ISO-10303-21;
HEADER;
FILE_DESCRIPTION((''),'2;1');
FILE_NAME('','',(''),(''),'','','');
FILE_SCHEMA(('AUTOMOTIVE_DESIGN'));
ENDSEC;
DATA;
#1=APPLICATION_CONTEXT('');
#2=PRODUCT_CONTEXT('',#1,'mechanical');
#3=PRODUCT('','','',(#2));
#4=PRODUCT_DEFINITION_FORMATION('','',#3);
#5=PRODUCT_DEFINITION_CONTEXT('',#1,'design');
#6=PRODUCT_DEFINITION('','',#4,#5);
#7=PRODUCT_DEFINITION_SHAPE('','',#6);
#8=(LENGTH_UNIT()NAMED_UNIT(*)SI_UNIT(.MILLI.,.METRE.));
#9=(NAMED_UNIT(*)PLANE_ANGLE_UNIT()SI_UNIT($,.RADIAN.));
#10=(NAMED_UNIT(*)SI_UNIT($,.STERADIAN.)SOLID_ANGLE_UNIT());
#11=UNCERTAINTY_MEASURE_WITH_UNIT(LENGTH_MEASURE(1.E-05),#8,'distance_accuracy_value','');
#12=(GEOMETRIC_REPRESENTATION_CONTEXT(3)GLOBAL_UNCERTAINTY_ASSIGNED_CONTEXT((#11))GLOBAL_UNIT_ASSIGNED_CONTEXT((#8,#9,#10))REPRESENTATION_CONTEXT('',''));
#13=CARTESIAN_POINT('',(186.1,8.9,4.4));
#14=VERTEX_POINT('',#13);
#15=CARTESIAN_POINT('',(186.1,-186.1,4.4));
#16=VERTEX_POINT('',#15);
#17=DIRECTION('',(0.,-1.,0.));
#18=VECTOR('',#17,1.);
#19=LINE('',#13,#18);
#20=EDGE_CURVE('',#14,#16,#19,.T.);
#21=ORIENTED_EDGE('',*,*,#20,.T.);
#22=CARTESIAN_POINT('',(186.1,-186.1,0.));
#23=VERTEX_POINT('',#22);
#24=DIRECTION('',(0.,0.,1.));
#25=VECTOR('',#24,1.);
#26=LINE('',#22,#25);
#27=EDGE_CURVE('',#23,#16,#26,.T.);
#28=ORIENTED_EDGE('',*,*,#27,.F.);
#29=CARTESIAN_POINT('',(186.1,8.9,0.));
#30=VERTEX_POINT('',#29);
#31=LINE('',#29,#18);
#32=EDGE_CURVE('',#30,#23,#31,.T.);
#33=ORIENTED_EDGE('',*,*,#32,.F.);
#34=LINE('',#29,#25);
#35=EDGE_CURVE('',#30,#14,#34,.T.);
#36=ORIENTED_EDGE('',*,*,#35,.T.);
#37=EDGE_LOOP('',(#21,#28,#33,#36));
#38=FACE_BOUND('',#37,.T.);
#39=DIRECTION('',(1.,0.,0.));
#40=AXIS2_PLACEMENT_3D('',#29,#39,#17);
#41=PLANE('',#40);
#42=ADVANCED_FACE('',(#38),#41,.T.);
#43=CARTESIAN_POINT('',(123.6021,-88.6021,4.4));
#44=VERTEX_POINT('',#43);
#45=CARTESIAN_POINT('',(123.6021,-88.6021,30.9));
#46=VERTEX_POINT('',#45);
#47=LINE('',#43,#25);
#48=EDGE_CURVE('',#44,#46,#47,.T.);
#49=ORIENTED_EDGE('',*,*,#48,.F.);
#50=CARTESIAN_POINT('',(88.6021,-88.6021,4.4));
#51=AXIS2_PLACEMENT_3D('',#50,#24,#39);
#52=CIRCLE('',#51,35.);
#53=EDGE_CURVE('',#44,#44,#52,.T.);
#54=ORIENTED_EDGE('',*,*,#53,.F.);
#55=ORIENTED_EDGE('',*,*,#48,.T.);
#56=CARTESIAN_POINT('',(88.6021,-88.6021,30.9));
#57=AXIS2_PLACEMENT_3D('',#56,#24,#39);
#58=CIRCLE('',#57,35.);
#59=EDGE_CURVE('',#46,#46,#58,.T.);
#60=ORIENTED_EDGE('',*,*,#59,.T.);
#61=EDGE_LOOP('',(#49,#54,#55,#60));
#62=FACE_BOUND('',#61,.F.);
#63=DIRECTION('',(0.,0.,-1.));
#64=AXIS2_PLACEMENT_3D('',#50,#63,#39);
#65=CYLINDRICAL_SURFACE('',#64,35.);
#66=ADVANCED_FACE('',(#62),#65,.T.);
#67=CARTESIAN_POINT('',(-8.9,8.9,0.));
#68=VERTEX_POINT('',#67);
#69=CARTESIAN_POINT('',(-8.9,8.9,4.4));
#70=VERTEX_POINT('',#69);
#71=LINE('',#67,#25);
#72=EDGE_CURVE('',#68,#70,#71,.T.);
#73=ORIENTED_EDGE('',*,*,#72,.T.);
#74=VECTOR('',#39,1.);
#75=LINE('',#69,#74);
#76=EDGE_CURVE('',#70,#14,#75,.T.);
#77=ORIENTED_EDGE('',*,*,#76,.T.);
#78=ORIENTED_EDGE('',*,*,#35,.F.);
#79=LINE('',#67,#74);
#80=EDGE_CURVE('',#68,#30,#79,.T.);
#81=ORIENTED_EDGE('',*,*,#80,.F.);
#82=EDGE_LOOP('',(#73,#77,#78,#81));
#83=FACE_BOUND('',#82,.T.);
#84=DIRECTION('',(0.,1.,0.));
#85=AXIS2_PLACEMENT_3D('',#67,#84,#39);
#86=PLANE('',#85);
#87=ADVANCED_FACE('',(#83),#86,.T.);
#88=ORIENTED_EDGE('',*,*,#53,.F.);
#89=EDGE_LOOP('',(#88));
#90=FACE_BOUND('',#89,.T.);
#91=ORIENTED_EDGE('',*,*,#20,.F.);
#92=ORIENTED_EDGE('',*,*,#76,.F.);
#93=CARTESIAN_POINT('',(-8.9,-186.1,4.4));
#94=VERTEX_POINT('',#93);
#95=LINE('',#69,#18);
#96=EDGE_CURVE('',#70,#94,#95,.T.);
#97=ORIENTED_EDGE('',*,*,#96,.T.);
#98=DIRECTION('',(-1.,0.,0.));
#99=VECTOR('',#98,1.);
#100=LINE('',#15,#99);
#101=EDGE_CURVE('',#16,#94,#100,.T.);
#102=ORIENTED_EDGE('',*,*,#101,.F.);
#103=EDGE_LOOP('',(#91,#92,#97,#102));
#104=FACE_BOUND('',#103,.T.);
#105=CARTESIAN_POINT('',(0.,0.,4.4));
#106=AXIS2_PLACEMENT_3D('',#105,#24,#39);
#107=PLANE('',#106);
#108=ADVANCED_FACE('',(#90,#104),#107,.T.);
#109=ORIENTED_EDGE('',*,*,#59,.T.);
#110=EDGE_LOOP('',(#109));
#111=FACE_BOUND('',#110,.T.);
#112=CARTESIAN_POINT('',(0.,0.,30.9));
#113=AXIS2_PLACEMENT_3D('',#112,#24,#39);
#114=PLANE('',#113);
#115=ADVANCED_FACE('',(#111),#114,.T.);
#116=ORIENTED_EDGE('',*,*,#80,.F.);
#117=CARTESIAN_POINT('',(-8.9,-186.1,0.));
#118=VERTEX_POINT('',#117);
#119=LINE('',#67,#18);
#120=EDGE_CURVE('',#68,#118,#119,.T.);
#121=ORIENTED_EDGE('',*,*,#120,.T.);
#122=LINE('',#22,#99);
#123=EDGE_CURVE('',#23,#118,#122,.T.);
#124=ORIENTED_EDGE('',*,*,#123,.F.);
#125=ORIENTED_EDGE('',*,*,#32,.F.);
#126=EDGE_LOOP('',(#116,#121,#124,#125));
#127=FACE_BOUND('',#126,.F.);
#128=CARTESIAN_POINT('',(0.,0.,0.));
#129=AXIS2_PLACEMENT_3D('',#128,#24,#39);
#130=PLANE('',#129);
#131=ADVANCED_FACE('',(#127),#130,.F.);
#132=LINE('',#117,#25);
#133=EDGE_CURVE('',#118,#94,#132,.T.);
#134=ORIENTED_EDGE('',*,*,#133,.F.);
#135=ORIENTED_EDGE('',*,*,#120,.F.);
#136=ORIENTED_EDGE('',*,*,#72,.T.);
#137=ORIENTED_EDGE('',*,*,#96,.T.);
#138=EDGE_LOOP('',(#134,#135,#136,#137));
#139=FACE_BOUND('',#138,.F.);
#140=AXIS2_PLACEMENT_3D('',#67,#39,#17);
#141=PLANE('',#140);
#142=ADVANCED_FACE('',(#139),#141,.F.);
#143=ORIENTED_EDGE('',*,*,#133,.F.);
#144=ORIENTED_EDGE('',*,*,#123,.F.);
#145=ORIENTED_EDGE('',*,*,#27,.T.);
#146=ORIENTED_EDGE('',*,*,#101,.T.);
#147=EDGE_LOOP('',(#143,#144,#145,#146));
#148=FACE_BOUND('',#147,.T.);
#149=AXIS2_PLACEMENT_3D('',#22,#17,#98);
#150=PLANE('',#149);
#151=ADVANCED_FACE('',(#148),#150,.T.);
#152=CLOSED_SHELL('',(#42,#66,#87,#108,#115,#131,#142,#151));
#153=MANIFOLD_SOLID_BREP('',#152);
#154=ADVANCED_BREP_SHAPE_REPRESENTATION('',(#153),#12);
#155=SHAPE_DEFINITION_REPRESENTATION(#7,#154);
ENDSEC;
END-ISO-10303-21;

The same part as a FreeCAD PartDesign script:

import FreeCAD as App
import Part
import Sketcher
from FreeCAD import Vector

doc = App.newDocument("Part")
body = doc.addObject("PartDesign::Body", "Body")

sketch1 = doc.addObject("Sketcher::SketchObject", "Sketch")
body.addObject(sketch1)
sketch1.AttachmentSupport = (doc.XY_Plane, [""])
sketch1.MapMode = "FlatFace"
sketch1.addGeometry(Part.LineSegment(Vector(186, -186, 0), Vector(186, 9, 0)), False)
sketch1.addGeometry(Part.LineSegment(Vector(186, 9, 0), Vector(-9, 9, 0)), False)
sketch1.addGeometry(Part.LineSegment(Vector(-9, 9, 0), Vector(-9, -186, 0)), False)
sketch1.addGeometry(Part.LineSegment(Vector(-9, -186, 0), Vector(186, -186, 0)), False)
sketch1.addConstraint(Sketcher.Constraint("Coincident", 0, 2, 1, 1))
sketch1.addConstraint(Sketcher.Constraint("Coincident", 1, 2, 2, 1))
sketch1.addConstraint(Sketcher.Constraint("Coincident", 2, 2, 3, 1))
sketch1.addConstraint(Sketcher.Constraint("Coincident", 3, 2, 0, 1))
sketch1.addConstraint(Sketcher.Constraint("Vertical", 0))
sketch1.addConstraint(Sketcher.Constraint("Horizontal", 1))
sketch1.addConstraint(Sketcher.Constraint("Vertical", 2))
sketch1.addConstraint(Sketcher.Constraint("Horizontal", 3))
sketch1.addConstraint(Sketcher.Constraint("Equal", 3, 0))
sketch1.addConstraint(Sketcher.Constraint("DistanceX", 1, 2, 1, 1, 195.0))
sketch1.addConstraint(Sketcher.Constraint("DistanceX", -1, 1, 0, 2, 186.1))
sketch1.addConstraint(Sketcher.Constraint("DistanceY", -1, 1, 0, 2, 8.9))
pad1 = doc.addObject("PartDesign::Pad", "Pad")
body.addObject(pad1)
pad1.Profile = sketch1
pad1.Length = 4.4

sketch2 = doc.addObject("Sketcher::SketchObject", "Sketch001")
body.addObject(sketch2)
sketch2.AttachmentSupport = (doc.XY_Plane, [""])
sketch2.MapMode = "FlatFace"
sketch2.AttachmentOffset = App.Placement(Vector(0, 0, 4.4), App.Rotation())
sketch2.addGeometry(Part.Circle(Vector(89, -89, 0), Vector(0, 0, 1), 35), False)
sketch2.addConstraint(Sketcher.Constraint("Diameter", 0, 70.0))
sketch2.addConstraint(Sketcher.Constraint("DistanceX", -1, 1, 0, 3, 88.602))
sketch2.addConstraint(Sketcher.Constraint("DistanceY", 0, 3, -1, 1, 88.602))
pad2 = doc.addObject("PartDesign::Pad", "Pad001")
body.addObject(pad2)
pad2.Profile = sketch2
pad2.Length = 26.5

doc.recompute()
